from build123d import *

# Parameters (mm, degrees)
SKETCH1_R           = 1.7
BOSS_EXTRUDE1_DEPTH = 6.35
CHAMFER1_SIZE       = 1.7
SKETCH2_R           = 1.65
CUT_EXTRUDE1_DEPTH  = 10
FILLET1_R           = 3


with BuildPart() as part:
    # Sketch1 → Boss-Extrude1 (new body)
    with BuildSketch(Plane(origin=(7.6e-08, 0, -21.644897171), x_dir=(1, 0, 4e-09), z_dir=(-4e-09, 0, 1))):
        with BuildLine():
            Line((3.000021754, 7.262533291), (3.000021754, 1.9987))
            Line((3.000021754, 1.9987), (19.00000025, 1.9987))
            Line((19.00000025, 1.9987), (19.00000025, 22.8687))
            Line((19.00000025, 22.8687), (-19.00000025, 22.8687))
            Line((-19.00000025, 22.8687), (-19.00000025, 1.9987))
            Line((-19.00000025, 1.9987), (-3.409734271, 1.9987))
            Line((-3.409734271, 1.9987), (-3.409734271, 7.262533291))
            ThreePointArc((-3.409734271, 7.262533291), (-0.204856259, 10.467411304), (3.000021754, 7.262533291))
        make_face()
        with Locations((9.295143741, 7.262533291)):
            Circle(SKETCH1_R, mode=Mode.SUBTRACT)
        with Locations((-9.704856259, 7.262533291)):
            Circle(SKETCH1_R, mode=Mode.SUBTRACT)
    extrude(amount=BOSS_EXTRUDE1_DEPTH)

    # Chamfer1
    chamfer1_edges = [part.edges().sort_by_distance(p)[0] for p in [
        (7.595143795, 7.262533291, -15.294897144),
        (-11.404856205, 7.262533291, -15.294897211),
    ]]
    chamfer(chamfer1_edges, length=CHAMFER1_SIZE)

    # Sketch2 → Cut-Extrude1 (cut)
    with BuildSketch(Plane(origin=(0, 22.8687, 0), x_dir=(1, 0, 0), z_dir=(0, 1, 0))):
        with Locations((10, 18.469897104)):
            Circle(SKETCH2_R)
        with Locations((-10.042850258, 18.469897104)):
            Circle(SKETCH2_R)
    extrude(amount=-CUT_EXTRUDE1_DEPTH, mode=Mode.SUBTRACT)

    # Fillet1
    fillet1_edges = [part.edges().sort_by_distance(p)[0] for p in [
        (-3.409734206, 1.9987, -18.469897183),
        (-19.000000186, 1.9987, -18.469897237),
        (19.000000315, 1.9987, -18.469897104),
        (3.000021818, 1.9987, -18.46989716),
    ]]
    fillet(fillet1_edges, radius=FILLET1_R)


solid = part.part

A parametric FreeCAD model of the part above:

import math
import FreeCAD as App
import Part
import Sketcher
from FreeCAD import Vector


def edges_at(feature, points):
    """Names of the edges that pass closest to the given points."""
    edges = feature.Shape.Edges
    near = lambda p: min(range(len(edges)), key=lambda i: edges[i].distToShape(Part.Vertex(*p))[0])
    return sorted({f"Edge{near(p) + 1}" for p in points})

doc = App.newDocument("Part")
body = doc.addObject("PartDesign::Body", "Body")

sketch1 = body.newObject("Sketcher::SketchObject", "Sketch")
sketch1.AttachmentSupport = (doc.getObject("XY_Plane"), [""])
sketch1.MapMode = "FlatFace"
sketch1.AttachmentOffset = App.Placement(Vector(0, 0, -21.644897), App.Rotation())
sketch1.addGeometry([
    Part.LineSegment(Vector(3.000022, 7.262533, 0), Vector(3.000022, 1.9987, 0)),
    Part.LineSegment(Vector(3.000022, 1.9987, 0), Vector(19, 1.9987, 0)),
    Part.LineSegment(Vector(19, 1.9987, 0), Vector(19, 22.8687, 0)),
    Part.LineSegment(Vector(19, 22.8687, 0), Vector(-19, 22.8687, 0)),
    Part.LineSegment(Vector(-19, 22.8687, 0), Vector(-19, 1.9987, 0)),
    Part.LineSegment(Vector(-19, 1.9987, 0), Vector(-3.409734, 1.9987, 0)),
    Part.LineSegment(Vector(-3.409734, 1.9987, 0), Vector(-3.409734, 7.262533, 0)),
    Part.ArcOfCircle(Part.Circle(Vector(-0.204856, 7.262533, 0), Vector(0, 0, 1), 3.204878), math.radians(0), math.radians(180)),
    Part.Circle(Vector(-9.704856, 7.262533, 0), Vector(0, 0, 1), 1.7),
    Part.Circle(Vector(9.295144, 7.262533, 0), Vector(0, 0, 1), 1.7),
], False)
sketch1.addConstraint([
    Sketcher.Constraint("Coincident", 0, 2, 1, 1),
    Sketcher.Constraint("Coincident", 1, 2, 2, 1),
    Sketcher.Constraint("Coincident", 2, 2, 3, 1),
    Sketcher.Constraint("Coincident", 3, 2, 4, 1),
    Sketcher.Constraint("Coincident", 4, 2, 5, 1),
    Sketcher.Constraint("Coincident", 5, 2, 6, 1),
    Sketcher.Constraint("Tangent", 6, 2, 7, 2),
    Sketcher.Constraint("Tangent", 7, 1, 0, 1),
    Sketcher.Constraint("Vertical", 0),
    Sketcher.Constraint("Horizontal", 1),
    Sketcher.Constraint("Vertical", 2),
    Sketcher.Constraint("Horizontal", 3),
    Sketcher.Constraint("Vertical", 4),
    Sketcher.Constraint("Horizontal", 5),
    Sketcher.Constraint("Vertical", 6),
    Sketcher.Constraint("Equal", 8, 9),
    Sketcher.Constraint("Symmetric", 1, 2, 4, 2, -2),
    Sketcher.Constraint("Horizontal", 7, 3, 8, 3),
    Sketcher.Constraint("Horizontal", 8, 3, 9, 3),
    Sketcher.Constraint("Diameter", 8, 3.4),
    Sketcher.Constraint("DistanceX", 3, 2, 3, 1, 38.0),
    Sketcher.Constraint("DistanceX", 8, 3, 9, 3, 19.0),
    Sketcher.Constraint("DistanceY", 2, 1, 2, 2, 20.87),
    Sketcher.Constraint("DistanceX", 8, 3, 7, 3, 9.5),
    Sketcher.Constraint("Radius", 7, 3.204878),
    Sketcher.Constraint("DistanceX", 1, 1, 1, 2, 15.999978),
    Sketcher.Constraint("DistanceY", -1, 1, 0, 2, 1.9987),
    Sketcher.Constraint("DistanceY", 0, 2, 0, 1, 5.263833),
])
pad1 = body.newObject("PartDesign::Pad", "Pad")
pad1.Profile = sketch1
pad1.Length = 6.35
doc.recompute()

chamfer = body.newObject("PartDesign::Chamfer", "Chamfer")
chamfer.Base = (pad1, edges_at(pad1, [(7.595, 7.263, -15.295), (-11.405, 7.263, -15.295)]))
chamfer.Size = 1.7

sketch2 = body.newObject("Sketcher::SketchObject", "Sketch001")
sketch2.AttachmentSupport = (doc.getObject("XZ_Plane"), [""])
sketch2.MapMode = "FlatFace"
sketch2.AttachmentOffset = App.Placement(Vector(0, 0, -22.8687), App.Rotation())
sketch2.addGeometry([
    Part.Circle(Vector(10, -18.469897, 0), Vector(0, 0, 1), 1.65),
    Part.Circle(Vector(-10.04285, -18.469897, 0), Vector(0, 0, 1), 1.65),
], False)
sketch2.addConstraint([
    Sketcher.Constraint("Equal", 0, 1),
    Sketcher.Constraint("Horizontal", 0, 3, 1, 3),
    Sketcher.Constraint("Diameter", 0, 3.3),
    Sketcher.Constraint("DistanceX", -1, 1, 0, 3, 10.0),
    Sketcher.Constraint("DistanceX", 1, 3, -1, 1, 10.04285),
    Sketcher.Constraint("DistanceY", 0, 3, -1, 1, 18.469897),
])
pocket1 = body.newObject("PartDesign::Pocket", "Pocket")
pocket1.Profile = sketch2
pocket1.Length = 10
pocket1.Reversed = True
doc.recompute()

fillet = body.newObject("PartDesign::Fillet", "Fillet")
fillet.Base = (pocket1, edges_at(pocket1, [
    (-3.41, 1.999, -18.47),
    (-19, 1.999, -18.47),
    (19, 1.999, -18.47),
    (3, 1.999, -18.47),
]))
fillet.Radius = 3

doc.recompute()
